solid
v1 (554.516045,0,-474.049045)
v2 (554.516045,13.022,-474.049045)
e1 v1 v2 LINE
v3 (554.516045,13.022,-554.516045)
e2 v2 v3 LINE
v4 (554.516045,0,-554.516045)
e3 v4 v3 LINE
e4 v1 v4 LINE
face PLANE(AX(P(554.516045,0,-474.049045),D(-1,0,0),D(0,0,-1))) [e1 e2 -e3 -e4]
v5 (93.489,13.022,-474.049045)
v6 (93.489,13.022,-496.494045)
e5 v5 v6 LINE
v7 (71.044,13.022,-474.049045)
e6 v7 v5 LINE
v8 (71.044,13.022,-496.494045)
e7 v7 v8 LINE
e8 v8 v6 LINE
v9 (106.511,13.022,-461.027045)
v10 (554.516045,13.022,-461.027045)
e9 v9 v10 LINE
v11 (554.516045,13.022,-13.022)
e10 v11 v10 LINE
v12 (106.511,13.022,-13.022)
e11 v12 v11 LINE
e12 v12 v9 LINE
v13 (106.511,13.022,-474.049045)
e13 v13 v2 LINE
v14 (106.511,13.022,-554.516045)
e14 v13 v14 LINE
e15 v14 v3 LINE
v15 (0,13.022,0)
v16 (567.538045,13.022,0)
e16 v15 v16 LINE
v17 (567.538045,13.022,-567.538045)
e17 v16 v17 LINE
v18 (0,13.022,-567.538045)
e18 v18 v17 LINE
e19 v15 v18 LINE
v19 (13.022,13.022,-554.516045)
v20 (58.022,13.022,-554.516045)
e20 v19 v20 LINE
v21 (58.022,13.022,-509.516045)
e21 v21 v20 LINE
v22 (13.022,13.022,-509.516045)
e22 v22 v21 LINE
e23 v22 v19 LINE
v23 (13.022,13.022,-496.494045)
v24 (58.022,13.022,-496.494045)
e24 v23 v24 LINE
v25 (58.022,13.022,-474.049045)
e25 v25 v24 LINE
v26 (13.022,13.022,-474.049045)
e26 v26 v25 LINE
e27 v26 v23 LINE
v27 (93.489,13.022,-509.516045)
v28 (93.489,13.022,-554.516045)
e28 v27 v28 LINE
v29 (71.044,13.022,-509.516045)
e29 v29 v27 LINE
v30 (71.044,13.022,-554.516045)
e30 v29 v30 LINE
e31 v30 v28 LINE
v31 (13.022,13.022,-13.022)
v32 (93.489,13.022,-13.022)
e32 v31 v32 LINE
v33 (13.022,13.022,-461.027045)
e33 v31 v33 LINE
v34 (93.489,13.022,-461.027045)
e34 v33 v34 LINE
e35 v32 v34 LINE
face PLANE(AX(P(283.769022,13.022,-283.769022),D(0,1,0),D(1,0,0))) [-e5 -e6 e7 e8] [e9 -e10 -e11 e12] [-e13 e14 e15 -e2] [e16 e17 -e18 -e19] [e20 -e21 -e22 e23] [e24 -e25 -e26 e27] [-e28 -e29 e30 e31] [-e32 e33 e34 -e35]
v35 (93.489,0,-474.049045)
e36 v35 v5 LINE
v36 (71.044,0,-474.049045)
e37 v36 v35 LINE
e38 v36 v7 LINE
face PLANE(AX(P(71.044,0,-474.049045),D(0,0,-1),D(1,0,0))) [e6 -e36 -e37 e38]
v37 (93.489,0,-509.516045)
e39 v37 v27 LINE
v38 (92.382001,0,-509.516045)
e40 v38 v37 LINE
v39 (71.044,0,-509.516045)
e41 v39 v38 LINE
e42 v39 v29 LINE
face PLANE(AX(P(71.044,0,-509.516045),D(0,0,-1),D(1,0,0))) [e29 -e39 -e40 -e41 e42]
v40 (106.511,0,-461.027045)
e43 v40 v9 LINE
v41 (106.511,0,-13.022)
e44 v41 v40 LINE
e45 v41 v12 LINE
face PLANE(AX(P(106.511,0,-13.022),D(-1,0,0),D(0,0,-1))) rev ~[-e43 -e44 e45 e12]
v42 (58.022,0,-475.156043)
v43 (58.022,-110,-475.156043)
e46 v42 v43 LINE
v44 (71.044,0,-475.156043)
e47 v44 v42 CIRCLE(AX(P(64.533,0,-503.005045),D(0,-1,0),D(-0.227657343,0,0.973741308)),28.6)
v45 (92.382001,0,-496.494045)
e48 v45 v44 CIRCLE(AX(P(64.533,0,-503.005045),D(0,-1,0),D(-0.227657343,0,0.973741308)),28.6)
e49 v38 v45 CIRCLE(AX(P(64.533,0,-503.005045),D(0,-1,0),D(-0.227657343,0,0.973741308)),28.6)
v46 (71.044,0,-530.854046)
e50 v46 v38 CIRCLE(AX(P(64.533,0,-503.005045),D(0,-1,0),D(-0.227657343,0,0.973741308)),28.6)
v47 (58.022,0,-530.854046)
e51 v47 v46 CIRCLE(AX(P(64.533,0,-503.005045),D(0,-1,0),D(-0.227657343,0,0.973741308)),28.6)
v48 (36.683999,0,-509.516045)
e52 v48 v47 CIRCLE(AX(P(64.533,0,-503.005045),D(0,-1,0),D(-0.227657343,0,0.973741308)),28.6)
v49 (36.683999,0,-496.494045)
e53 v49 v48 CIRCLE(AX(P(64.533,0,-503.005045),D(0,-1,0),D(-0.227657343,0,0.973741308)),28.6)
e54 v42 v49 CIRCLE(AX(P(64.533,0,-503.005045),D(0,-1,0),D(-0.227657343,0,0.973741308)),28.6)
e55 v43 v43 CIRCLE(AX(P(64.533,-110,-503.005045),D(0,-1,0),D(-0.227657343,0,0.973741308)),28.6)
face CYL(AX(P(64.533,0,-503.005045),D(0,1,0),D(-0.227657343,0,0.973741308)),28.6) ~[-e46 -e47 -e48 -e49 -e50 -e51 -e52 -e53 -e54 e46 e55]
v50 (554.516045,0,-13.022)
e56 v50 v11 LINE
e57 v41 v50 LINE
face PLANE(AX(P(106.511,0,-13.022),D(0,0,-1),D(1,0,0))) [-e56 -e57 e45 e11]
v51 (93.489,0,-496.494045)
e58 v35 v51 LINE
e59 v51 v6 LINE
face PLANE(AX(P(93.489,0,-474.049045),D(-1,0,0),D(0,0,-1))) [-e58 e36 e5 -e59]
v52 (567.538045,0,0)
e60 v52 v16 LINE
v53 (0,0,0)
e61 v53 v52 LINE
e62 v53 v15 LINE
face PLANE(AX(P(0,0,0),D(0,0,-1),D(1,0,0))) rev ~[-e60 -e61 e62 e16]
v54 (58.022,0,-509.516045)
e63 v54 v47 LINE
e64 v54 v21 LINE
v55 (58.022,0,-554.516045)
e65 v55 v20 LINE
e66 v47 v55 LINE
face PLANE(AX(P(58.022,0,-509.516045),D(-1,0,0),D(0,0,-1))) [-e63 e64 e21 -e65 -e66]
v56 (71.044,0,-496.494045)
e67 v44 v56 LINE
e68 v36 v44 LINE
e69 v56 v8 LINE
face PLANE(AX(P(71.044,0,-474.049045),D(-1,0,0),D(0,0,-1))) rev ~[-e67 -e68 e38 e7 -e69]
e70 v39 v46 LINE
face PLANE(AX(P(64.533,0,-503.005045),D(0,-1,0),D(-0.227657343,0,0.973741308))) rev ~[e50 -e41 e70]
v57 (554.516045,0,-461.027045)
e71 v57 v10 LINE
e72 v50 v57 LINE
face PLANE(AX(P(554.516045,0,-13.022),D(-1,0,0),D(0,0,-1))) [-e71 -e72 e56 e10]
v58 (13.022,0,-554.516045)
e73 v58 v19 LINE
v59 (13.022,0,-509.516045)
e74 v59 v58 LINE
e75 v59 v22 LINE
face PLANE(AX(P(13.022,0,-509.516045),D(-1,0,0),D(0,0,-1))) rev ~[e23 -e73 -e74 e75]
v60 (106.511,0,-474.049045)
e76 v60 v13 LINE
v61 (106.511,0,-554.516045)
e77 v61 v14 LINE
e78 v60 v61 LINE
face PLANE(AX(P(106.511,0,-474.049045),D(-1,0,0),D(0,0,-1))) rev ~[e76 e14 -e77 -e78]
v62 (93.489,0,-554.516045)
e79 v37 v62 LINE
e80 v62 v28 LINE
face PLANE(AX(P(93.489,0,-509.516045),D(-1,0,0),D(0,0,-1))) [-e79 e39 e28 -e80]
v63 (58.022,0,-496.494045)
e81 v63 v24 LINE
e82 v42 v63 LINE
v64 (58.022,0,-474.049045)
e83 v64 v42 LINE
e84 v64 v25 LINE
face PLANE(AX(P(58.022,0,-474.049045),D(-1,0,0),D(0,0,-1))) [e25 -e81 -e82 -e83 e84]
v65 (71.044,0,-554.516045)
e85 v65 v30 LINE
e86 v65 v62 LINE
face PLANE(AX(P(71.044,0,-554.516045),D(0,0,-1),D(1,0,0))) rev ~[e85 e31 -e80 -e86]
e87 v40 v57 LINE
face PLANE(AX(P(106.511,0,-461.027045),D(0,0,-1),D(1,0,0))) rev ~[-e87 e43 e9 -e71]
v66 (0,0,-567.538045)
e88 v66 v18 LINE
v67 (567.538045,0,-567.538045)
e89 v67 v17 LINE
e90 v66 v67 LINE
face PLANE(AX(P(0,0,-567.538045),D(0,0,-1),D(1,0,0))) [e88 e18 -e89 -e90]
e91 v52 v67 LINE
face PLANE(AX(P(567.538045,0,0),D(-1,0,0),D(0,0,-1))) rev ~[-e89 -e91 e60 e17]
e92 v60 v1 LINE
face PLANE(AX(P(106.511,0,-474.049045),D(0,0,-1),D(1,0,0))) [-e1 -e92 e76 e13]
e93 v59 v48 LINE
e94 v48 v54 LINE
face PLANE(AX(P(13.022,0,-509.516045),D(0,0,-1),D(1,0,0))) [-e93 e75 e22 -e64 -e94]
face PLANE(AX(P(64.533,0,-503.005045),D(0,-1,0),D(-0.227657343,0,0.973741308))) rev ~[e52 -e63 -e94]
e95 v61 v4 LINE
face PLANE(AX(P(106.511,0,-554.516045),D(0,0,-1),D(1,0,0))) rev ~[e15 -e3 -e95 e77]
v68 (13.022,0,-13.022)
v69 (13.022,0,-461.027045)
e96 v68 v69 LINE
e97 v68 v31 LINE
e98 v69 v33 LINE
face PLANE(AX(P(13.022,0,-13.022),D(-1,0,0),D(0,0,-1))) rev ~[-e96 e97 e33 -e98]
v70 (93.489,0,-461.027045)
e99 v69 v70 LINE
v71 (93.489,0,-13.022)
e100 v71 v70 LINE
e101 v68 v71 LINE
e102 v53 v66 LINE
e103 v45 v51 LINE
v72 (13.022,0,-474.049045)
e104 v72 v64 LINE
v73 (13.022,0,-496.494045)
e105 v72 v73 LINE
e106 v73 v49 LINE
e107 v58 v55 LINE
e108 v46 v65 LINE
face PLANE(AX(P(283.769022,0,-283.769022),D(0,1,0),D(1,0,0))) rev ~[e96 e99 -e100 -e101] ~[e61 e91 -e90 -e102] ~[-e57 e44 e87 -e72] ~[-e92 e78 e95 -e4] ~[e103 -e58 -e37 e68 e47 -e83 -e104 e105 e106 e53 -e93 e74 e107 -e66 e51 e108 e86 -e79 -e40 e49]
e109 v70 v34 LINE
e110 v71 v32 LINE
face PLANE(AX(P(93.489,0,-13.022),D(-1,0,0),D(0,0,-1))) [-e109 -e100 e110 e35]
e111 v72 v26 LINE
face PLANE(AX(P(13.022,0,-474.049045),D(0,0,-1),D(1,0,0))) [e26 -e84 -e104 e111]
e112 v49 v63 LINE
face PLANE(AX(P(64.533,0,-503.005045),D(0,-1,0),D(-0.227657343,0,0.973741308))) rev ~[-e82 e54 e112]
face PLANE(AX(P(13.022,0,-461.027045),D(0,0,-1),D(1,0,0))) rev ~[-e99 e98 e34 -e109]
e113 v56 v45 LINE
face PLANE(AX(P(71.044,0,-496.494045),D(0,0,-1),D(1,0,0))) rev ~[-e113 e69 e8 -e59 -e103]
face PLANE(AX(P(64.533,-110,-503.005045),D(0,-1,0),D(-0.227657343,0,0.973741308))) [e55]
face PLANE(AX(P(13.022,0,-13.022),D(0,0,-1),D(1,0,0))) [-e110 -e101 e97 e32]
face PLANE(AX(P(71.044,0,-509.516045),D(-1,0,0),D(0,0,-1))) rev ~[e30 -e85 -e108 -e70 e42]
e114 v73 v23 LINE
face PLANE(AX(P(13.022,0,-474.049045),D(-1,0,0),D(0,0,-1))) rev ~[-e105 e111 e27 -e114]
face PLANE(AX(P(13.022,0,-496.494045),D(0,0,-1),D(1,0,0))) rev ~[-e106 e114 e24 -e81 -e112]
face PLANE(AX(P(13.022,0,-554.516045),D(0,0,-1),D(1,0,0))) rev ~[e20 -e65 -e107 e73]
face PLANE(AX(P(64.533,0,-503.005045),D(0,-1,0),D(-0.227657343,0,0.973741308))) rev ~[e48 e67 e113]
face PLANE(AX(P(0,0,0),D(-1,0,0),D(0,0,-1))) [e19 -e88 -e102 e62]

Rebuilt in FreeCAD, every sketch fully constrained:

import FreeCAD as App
import Part
import Sketcher

V = App.Vector
Q = App.Units.Quantity

doc = App.newDocument("Part")
body = doc.addObject("PartDesign::Body", "Body")

# Sketch on XZ plane
sketch1 = doc.addObject("Sketcher::SketchObject", "Sketch")
body.addObject(sketch1)
sketch1.AttachmentSupport = (doc.XZ_Plane, [""])
sketch1.MapMode = "FlatFace"
sketch1.addGeometry(Part.LineSegment(V(0, -568, 0), V(0, 0, 0)), False)
sketch1.addGeometry(Part.LineSegment(V(0, 0, 0), V(568, 0, 0)), False)
sketch1.addGeometry(Part.LineSegment(V(568, 0, 0), V(568, -568, 0)), False)
sketch1.addGeometry(Part.LineSegment(V(568, -568, 0), V(0, -568, 0)), False)
sketch1.addGeometry(Part.LineSegment(V(93, -13, 0), V(13, -13, 0)), False)
sketch1.addGeometry(Part.LineSegment(V(13, -13, 0), V(13, -461, 0)), False)
sketch1.addGeometry(Part.LineSegment(V(13, -461, 0), V(93, -461, 0)), False)
sketch1.addGeometry(Part.LineSegment(V(93, -461, 0), V(93, -13, 0)), False)
sketch1.addGeometry(Part.LineSegment(V(555, -13, 0), V(107, -13, 0)), False)
sketch1.addGeometry(Part.LineSegment(V(107, -13, 0), V(107, -461, 0)), False)
sketch1.addGeometry(Part.LineSegment(V(107, -461, 0), V(555, -461, 0)), False)
sketch1.addGeometry(Part.LineSegment(V(555, -461, 0), V(555, -13, 0)), False)
sketch1.addGeometry(Part.LineSegment(V(58, -474, 0), V(13, -474, 0)), False)
sketch1.addGeometry(Part.LineSegment(V(13, -474, 0), V(13, -496, 0)), False)
sketch1.addGeometry(Part.LineSegment(V(13, -496, 0), V(58, -496, 0)), False)
sketch1.addGeometry(Part.LineSegment(V(58, -496, 0), V(58, -474, 0)), False)
sketch1.addGeometry(Part.LineSegment(V(93, -474, 0), V(71, -474, 0)), False)
sketch1.addGeometry(Part.LineSegment(V(71, -474, 0), V(71, -496, 0)), False)
sketch1.addGeometry(Part.LineSegment(V(71, -496, 0), V(93, -496, 0)), False)
sketch1.addGeometry(Part.LineSegment(V(93, -496, 0), V(93, -474, 0)), False)
sketch1.addGeometry(Part.LineSegment(V(58, -510, 0), V(13, -510, 0)), False)
sketch1.addGeometry(Part.LineSegment(V(13, -510, 0), V(13, -555, 0)), False)
sketch1.addGeometry(Part.LineSegment(V(13, -555, 0), V(58, -555, 0)), False)
sketch1.addGeometry(Part.LineSegment(V(58, -555, 0), V(58, -510, 0)), False)
sketch1.addGeometry(Part.LineSegment(V(93, -510, 0), V(71, -510, 0)), False)
sketch1.addGeometry(Part.LineSegment(V(71, -510, 0), V(71, -555, 0)), False)
sketch1.addGeometry(Part.LineSegment(V(71, -555, 0), V(93, -555, 0)), False)
sketch1.addGeometry(Part.LineSegment(V(93, -555, 0), V(93, -510, 0)), False)
sketch1.addGeometry(Part.LineSegment(V(555, -474, 0), V(107, -474, 0)), False)
sketch1.addGeometry(Part.LineSegment(V(107, -474, 0), V(107, -555, 0)), False)
sketch1.addGeometry(Part.LineSegment(V(107, -555, 0), V(555, -555, 0)), False)
sketch1.addGeometry(Part.LineSegment(V(555, -555, 0), V(555, -474, 0)), False)
sketch1.addConstraint(Sketcher.Constraint("Coincident", 0, 2, 1, 1))
sketch1.addConstraint(Sketcher.Constraint("Coincident", 1, 2, 2, 1))
sketch1.addConstraint(Sketcher.Constraint("Coincident", 2, 2, 3, 1))
sketch1.addConstraint(Sketcher.Constraint("Coincident", 3, 2, 0, 1))
sketch1.addConstraint(Sketcher.Constraint("Coincident", 4, 2, 5, 1))
sketch1.addConstraint(Sketcher.Constraint("Coincident", 5, 2, 6, 1))
sketch1.addConstraint(Sketcher.Constraint("Coincident", 6, 2, 7, 1))
sketch1.addConstraint(Sketcher.Constraint("Coincident", 7, 2, 4, 1))
sketch1.addConstraint(Sketcher.Constraint("Coincident", 8, 2, 9, 1))
sketch1.addConstraint(Sketcher.Constraint("Coincident", 9, 2, 10, 1))
sketch1.addConstraint(Sketcher.Constraint("Coincident", 10, 2, 11, 1))
sketch1.addConstraint(Sketcher.Constraint("Coincident", 11, 2, 8, 1))
sketch1.addConstraint(Sketcher.Constraint("Coincident", 12, 2, 13, 1))
sketch1.addConstraint(Sketcher.Constraint("Coincident", 13, 2, 14, 1))
sketch1.addConstraint(Sketcher.Constraint("Coincident", 14, 2, 15, 1))
sketch1.addConstraint(Sketcher.Constraint("Coincident", 15, 2, 12, 1))
sketch1.addConstraint(Sketcher.Constraint("Coincident", 16, 2, 17, 1))
sketch1.addConstraint(Sketcher.Constraint("Coincident", 17, 2, 18, 1))
sketch1.addConstraint(Sketcher.Constraint("Coincident", 18, 2, 19, 1))
sketch1.addConstraint(Sketcher.Constraint("Coincident", 19, 2, 16, 1))
sketch1.addConstraint(Sketcher.Constraint("Coincident", 20, 2, 21, 1))
sketch1.addConstraint(Sketcher.Constraint("Coincident", 21, 2, 22, 1))
sketch1.addConstraint(Sketcher.Constraint("Coincident", 22, 2, 23, 1))
sketch1.addConstraint(Sketcher.Constraint("Coincident", 23, 2, 20, 1))
sketch1.addConstraint(Sketcher.Constraint("Coincident", 24, 2, 25, 1))
sketch1.addConstraint(Sketcher.Constraint("Coincident", 25, 2, 26, 1))
sketch1.addConstraint(Sketcher.Constraint("Coincident", 26, 2, 27, 1))
sketch1.addConstraint(Sketcher.Constraint("Coincident", 27, 2, 24, 1))
sketch1.addConstraint(Sketcher.Constraint("Coincident", 28, 2, 29, 1))
sketch1.addConstraint(Sketcher.Constraint("Coincident", 29, 2, 30, 1))
sketch1.addConstraint(Sketcher.Constraint("Coincident", 30, 2, 31, 1))
sketch1.addConstraint(Sketcher.Constraint("Coincident", 31, 2, 28, 1))
sketch1.addConstraint(Sketcher.Constraint("Vertical", 0))
sketch1.addConstraint(Sketcher.Constraint("Horizontal", 1))
sketch1.addConstraint(Sketcher.Constraint("Vertical", 2))
sketch1.addConstraint(Sketcher.Constraint("Horizontal", 3))
sketch1.addConstraint(Sketcher.Constraint("Horizontal", 4))
sketch1.addConstraint(Sketcher.Constraint("Vertical", 5))
sketch1.addConstraint(Sketcher.Constraint("Horizontal", 6))
sketch1.addConstraint(Sketcher.Constraint("Vertical", 7))
sketch1.addConstraint(Sketcher.Constraint("Horizontal", 8))
sketch1.addConstraint(Sketcher.Constraint("Vertical", 9))
sketch1.addConstraint(Sketcher.Constraint("Horizontal", 10))
sketch1.addConstraint(Sketcher.Constraint("Vertical", 11))
sketch1.addConstraint(Sketcher.Constraint("Horizontal", 12))
sketch1.addConstraint(Sketcher.Constraint("Vertical", 13))
sketch1.addConstraint(Sketcher.Constraint("Horizontal", 14))
sketch1.addConstraint(Sketcher.Constraint("Vertical", 15))
sketch1.addConstraint(Sketcher.Constraint("Horizontal", 16))
sketch1.addConstraint(Sketcher.Constraint("Vertical", 17))
sketch1.addConstraint(Sketcher.Constraint("Horizontal", 18))
sketch1.addConstraint(Sketcher.Constraint("Vertical", 19))
sketch1.addConstraint(Sketcher.Constraint("Horizontal", 20))
sketch1.addConstraint(Sketcher.Constraint("Vertical", 21))
sketch1.addConstraint(Sketcher.Constraint("Horizontal", 22))
sketch1.addConstraint(Sketcher.Constraint("Vertical", 23))
sketch1.addConstraint(Sketcher.Constraint("Horizontal", 24))
sketch1.addConstraint(Sketcher.Constraint("Vertical", 25))
sketch1.addConstraint(Sketcher.Constraint("Horizontal", 26))
sketch1.addConstraint(Sketcher.Constraint("Vertical", 27))
sketch1.addConstraint(Sketcher.Constraint("Horizontal", 28))
sketch1.addConstraint(Sketcher.Constraint("Vertical", 29))
sketch1.addConstraint(Sketcher.Constraint("Horizontal", 30))
sketch1.addConstraint(Sketcher.Constraint("Vertical", 31))
sketch1.addConstraint(Sketcher.Constraint("Coincident", 0, 2, -1, 1))
sketch1.addConstraint(Sketcher.Constraint("Horizontal", 7, 2, 8, 2))
sketch1.addConstraint(Sketcher.Constraint("Horizontal", 6, 2, 9, 2))
sketch1.addConstraint(Sketcher.Constraint("Horizontal", 15, 2, 16, 2))
sketch1.addConstraint(Sketcher.Constraint("Horizontal", 14, 2, 17, 2))
sketch1.addConstraint(Sketcher.Constraint("Horizontal", 23, 2, 24, 2))
sketch1.addConstraint(Sketcher.Constraint("Horizontal", 22, 2, 25, 2))
sketch1.addConstraint(Sketcher.Constraint("Horizontal", 19, 2, 28, 2))
sketch1.addConstraint(Sketcher.Constraint("Horizontal", 26, 2, 29, 2))
sketch1.addConstraint(Sketcher.Constraint("Vertical", 5, 2, 12, 2))
sketch1.addConstraint(Sketcher.Constraint("Vertical", 7, 2, 18, 2))
sketch1.addConstraint(Sketcher.Constraint("Vertical", 13, 2, 20, 2))
sketch1.addConstraint(Sketcher.Constraint("Vertical", 15, 2, 22, 2))
sketch1.addConstraint(Sketcher.Constraint("Vertical", 17, 2, 24, 2))
sketch1.addConstraint(Sketcher.Constraint("Vertical", 19, 2, 26, 2))
sketch1.addConstraint(Sketcher.Constraint("Vertical", 9, 2, 28, 2))
sketch1.addConstraint(Sketcher.Constraint("Vertical", 11, 2, 30, 2))
sketch1.addConstraint(Sketcher.Constraint("Equal", 3, 0))
sketch1.addConstraint(Sketcher.Constraint("Equal", 30, 5))
sketch1.addConstraint(Sketcher.Constraint("Equal", 26, 13))
sketch1.addConstraint(Sketcher.Constraint("Equal", 22, 21))
sketch1.addConstraint(Sketcher.Constraint("Equal", 6, 29))
sketch1.addConstraint(Sketcher.Constraint("DistanceX", 12, 2, 12, 1, Q("45 mm")))
sketch1.addConstraint(Sketcher.Constraint("DistanceX", 4, 2, 4, 1, Q("80.467 mm")))
sketch1.addConstraint(Sketcher.Constraint("DistanceX", 16, 2, 16, 1, Q("22.445 mm")))
sketch1.addConstraint(Sketcher.Constraint("DistanceX", -1, 1, 4, 2, Q("13.022 mm")))
sketch1.addConstraint(Sketcher.Constraint("DistanceY", 4, 2, -1, 1, Q("13.022 mm")))
sketch1.addConstraint(Sketcher.Constraint("DistanceX", -1, 1, 8, 2, Q("106.511 mm")))
sketch1.addConstraint(Sketcher.Constraint("DistanceY", 3, 2, 5, 2, Q("106.511 mm")))
sketch1.addConstraint(Sketcher.Constraint("DistanceY", 12, 2, 5, 2, Q("13.022 mm")))
sketch1.addConstraint(Sketcher.Constraint("DistanceX", 1, 1, 1, 2, Q("567.538045 mm")))
pad1 = doc.addObject("PartDesign::Pad", "Pad")
body.addObject(pad1)
pad1.Profile = sketch1
pad1.Length = 13.022
pad1.Reversed = True

# Sketch on XZ plane
sketch2 = doc.addObject("Sketcher::SketchObject", "Sketch001")
body.addObject(sketch2)
sketch2.AttachmentSupport = (doc.XZ_Plane, [""])
sketch2.MapMode = "FlatFace"
sketch2.addGeometry(Part.Circle(V(65, -503, 0), V(0, 0, 1), 29), False)
sketch2.addConstraint(Sketcher.Constraint("Diameter", 0, Q("57.2 mm")))
sketch2.addConstraint(Sketcher.Constraint("DistanceX", -1, 1, 0, 3, Q("64.533 mm")))
sketch2.addConstraint(Sketcher.Constraint("DistanceY", 0, 3, -1, 1, Q("503.005045 mm")))
pad2 = doc.addObject("PartDesign::Pad", "Pad001")
body.addObject(pad2)
pad2.Profile = sketch2
pad2.Length = 110

doc.recompute()
